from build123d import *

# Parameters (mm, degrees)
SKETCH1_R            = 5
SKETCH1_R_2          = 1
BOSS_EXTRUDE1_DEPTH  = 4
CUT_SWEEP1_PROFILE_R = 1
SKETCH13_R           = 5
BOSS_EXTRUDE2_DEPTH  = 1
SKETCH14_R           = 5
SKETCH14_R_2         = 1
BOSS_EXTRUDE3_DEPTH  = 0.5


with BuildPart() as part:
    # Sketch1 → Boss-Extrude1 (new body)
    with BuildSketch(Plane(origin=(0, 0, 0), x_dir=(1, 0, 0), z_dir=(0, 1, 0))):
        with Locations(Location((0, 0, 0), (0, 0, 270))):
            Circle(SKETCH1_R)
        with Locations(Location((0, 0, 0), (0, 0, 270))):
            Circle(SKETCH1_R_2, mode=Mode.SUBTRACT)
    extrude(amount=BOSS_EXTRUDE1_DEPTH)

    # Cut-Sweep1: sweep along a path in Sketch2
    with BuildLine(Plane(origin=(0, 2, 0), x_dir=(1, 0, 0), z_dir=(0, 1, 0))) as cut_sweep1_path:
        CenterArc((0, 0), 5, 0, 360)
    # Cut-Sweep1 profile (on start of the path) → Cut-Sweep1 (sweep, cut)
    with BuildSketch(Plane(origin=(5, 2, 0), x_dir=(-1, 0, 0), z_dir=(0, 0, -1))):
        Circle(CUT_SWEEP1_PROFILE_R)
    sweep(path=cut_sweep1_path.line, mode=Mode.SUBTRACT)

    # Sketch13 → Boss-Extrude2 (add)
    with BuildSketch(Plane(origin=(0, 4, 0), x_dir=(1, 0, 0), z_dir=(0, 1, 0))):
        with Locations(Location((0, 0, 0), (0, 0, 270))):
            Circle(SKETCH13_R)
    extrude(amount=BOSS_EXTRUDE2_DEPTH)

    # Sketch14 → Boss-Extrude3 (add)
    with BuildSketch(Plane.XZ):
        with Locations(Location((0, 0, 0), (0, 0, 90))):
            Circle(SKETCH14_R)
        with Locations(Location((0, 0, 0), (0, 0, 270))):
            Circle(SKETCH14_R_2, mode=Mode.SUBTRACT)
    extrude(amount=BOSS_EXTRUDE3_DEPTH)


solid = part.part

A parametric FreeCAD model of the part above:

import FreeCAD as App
import Part
import Sketcher

V = App.Vector

doc = App.newDocument("Part")
body = doc.addObject("PartDesign::Body", "Body")

# Sketch on XZ plane
sketch1 = body.newObject("Sketcher::SketchObject", "Sketch")
sketch1.AttachmentSupport = (doc.getObject("XZ_Plane"), [""])
sketch1.MapMode = "FlatFace"
sketch1.addGeometry([
    Part.Circle(V(0, 0, 0), V(0, 0, 1), 5),
    Part.Circle(V(0, 0, 0), V(0, 0, 1), 1),
], False)
sketch1.addConstraint([
    Sketcher.Constraint("Coincident", 0, 3, -1, 1),
    Sketcher.Constraint("Coincident", 1, 3, -1, 1),
    Sketcher.Constraint("Diameter", 0, 10.0),
    Sketcher.Constraint("Diameter", 1, 2.0),
])
pad1 = body.newObject("PartDesign::Pad", "Pad")
pad1.Profile = sketch1
pad1.Length = 4
pad1.Reversed = True

# Sketch on XY plane
sketch2 = body.newObject("Sketcher::SketchObject", "Sketch001")
sketch2.AttachmentSupport = (doc.getObject("XY_Plane"), [""])
sketch2.MapMode = "FlatFace"
sketch2.addGeometry(Part.Circle(V(5, 2, 0), V(0, 0, 1), 1), False)
sketch2.addConstraint([
    Sketcher.Constraint("Diameter", 0, 2.0),
    Sketcher.Constraint("DistanceX", -1, 1, 0, 3, 5.0),
    Sketcher.Constraint("DistanceY", -1, 1, 0, 3, 2.0),
])

# Sketch on XZ plane
sketch3 = body.newObject("Sketcher::SketchObject", "Sketch002")
sketch3.AttachmentSupport = (doc.getObject("XZ_Plane"), [""])
sketch3.MapMode = "FlatFace"
sketch3.AttachmentOffset = App.Placement(V(0, 0, -2), App.Rotation())
sketch3.addGeometry(Part.Circle(V(0, 0, 0), V(0, 0, 1), 5), False)
sketch3.addConstraint([
    Sketcher.Constraint("Coincident", 0, 3, -1, 1),
    Sketcher.Constraint("Diameter", 0, 10.0),
])
doc.recompute()

subtractivepipe = body.newObject("PartDesign::SubtractivePipe", "SubtractivePipe")
subtractivepipe.Profile = sketch2
subtractivepipe.Spine = (sketch3, ["Edge1"])

# Sketch on XZ plane
sketch4 = body.newObject("Sketcher::SketchObject", "Sketch003")
sketch4.AttachmentSupport = (doc.getObject("XZ_Plane"), [""])
sketch4.MapMode = "FlatFace"
sketch4.AttachmentOffset = App.Placement(V(0, 0, -4), App.Rotation())
sketch4.addGeometry(Part.Circle(V(0, 0, 0), V(0, 0, 1), 5), False)
sketch4.addConstraint([
    Sketcher.Constraint("Coincident", 0, 3, -1, 1),
    Sketcher.Constraint("Diameter", 0, 10.0),
])
pad2 = body.newObject("PartDesign::Pad", "Pad001")
pad2.Profile = sketch4
pad2.Length = 1
pad2.Reversed = True

# Sketch on XZ plane
sketch5 = body.newObject("Sketcher::SketchObject", "Sketch004")
sketch5.AttachmentSupport = (doc.getObject("XZ_Plane"), [""])
sketch5.MapMode = "FlatFace"
sketch5.addGeometry([
    Part.Circle(V(0, 0, 0), V(0, 0, 1), 5),
    Part.Circle(V(0, 0, 0), V(0, 0, 1), 1),
], False)
sketch5.addConstraint([
    Sketcher.Constraint("Coincident", 0, 3, -1, 1),
    Sketcher.Constraint("Coincident", 1, 3, -1, 1),
    Sketcher.Constraint("Diameter", 0, 10.0),
    Sketcher.Constraint("Diameter", 1, 2.0),
])
pad3 = body.newObject("PartDesign::Pad", "Pad002")
pad3.Profile = sketch5
pad3.Length = 0.5

doc.recompute()
